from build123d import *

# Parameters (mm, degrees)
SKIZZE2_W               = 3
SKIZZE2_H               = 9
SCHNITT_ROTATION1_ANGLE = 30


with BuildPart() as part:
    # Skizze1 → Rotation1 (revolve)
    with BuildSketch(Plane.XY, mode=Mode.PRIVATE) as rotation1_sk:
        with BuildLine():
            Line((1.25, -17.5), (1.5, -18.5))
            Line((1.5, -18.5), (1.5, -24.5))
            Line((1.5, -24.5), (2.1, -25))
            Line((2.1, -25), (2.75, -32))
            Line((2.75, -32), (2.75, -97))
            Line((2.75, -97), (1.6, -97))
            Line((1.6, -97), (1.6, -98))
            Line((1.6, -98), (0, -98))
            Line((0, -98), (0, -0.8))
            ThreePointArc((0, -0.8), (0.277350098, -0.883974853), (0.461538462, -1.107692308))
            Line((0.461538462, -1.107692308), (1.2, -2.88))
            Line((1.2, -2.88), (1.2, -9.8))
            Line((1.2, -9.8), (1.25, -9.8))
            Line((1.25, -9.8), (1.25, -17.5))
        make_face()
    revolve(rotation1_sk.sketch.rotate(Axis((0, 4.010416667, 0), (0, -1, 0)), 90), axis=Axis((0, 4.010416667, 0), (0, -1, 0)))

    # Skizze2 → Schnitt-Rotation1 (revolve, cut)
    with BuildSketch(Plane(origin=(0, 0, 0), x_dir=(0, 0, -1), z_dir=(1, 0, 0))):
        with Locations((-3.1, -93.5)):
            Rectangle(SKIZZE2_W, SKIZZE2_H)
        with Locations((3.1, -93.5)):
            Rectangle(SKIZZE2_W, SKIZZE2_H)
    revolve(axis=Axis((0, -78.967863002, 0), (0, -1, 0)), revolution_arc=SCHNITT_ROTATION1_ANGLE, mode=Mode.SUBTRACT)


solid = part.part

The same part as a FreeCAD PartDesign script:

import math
import FreeCAD as App
import Part
import Sketcher
from FreeCAD import Vector


def add_polygon(sketch, points):
    """Adds a closed chain of lines whose ends are joined by coincident constraints."""
    first, n = sketch.GeometryCount, len(points)
    for a, b in zip(points, points[1:] + points[:1]):
        sketch.addGeometry(Part.LineSegment(App.Vector(*a, 0), App.Vector(*b, 0)), False)
    for i in range(n):
        sketch.addConstraint(Sketcher.Constraint("Coincident", first + i, 2, first + (i + 1) % n, 1))

doc = App.newDocument("Part")
body = doc.addObject("PartDesign::Body", "Body")

sketch1 = body.newObject("Sketcher::SketchObject", "Sketch")
sketch1.AttachmentSupport = (doc.getObject("XY_Plane"), [""])
sketch1.MapMode = "FlatFace"
sketch1.addGeometry([
    Part.LineSegment(Vector(1.5, -18.5, 0), Vector(1.25, -17.5, 0)),
    Part.LineSegment(Vector(1.25, -17.5, 0), Vector(1.25, -9.8, 0)),
    Part.LineSegment(Vector(1.25, -9.8, 0), Vector(1.2, -9.8, 0)),
    Part.LineSegment(Vector(1.2, -9.8, 0), Vector(1.2, -2.88, 0)),
    Part.LineSegment(Vector(1.2, -2.88, 0), Vector(0.46, -1.11, 0)),
    Part.ArcOfCircle(Part.Circle(Vector(0, -1.3, 0), Vector(0, 0, 1), 0.5), math.radians(23), math.radians(90)),
    Part.LineSegment(Vector(0, -0.8, 0), Vector(0, -98, 0)),
    Part.LineSegment(Vector(0, -98, 0), Vector(1.6, -98, 0)),
    Part.LineSegment(Vector(1.6, -98, 0), Vector(1.6, -97, 0)),
    Part.LineSegment(Vector(1.6, -97, 0), Vector(2.75, -97, 0)),
    Part.LineSegment(Vector(2.75, -97, 0), Vector(2.75, -32, 0)),
    Part.LineSegment(Vector(2.75, -32, 0), Vector(2.1, -25, 0)),
    Part.LineSegment(Vector(2.1, -25, 0), Vector(1.5, -24.5, 0)),
    Part.LineSegment(Vector(1.5, -24.5, 0), Vector(1.5, -18.5, 0)),
], False)
sketch1.addConstraint([
    Sketcher.Constraint("Coincident", 0, 2, 1, 1),
    Sketcher.Constraint("Coincident", 1, 2, 2, 1),
    Sketcher.Constraint("Coincident", 2, 2, 3, 1),
    Sketcher.Constraint("Coincident", 3, 2, 4, 1),
    Sketcher.Constraint("Tangent", 4, 2, 5, 1),
    Sketcher.Constraint("Coincident", 5, 2, 6, 1),
    Sketcher.Constraint("Coincident", 6, 2, 7, 1),
    Sketcher.Constraint("Coincident", 7, 2, 8, 1),
    Sketcher.Constraint("Coincident", 8, 2, 9, 1),
    Sketcher.Constraint("Coincident", 9, 2, 10, 1),
    Sketcher.Constraint("Coincident", 10, 2, 11, 1),
    Sketcher.Constraint("Coincident", 11, 2, 12, 1),
    Sketcher.Constraint("Coincident", 12, 2, 13, 1),
    Sketcher.Constraint("Coincident", 13, 2, 0, 1),
    Sketcher.Constraint("Vertical", 1),
    Sketcher.Constraint("Horizontal", 2),
    Sketcher.Constraint("Vertical", 3),
    Sketcher.Constraint("Vertical", 6),
    Sketcher.Constraint("Horizontal", 7),
    Sketcher.Constraint("Vertical", 8),
    Sketcher.Constraint("Horizontal", 9),
    Sketcher.Constraint("Vertical", 10),
    Sketcher.Constraint("Vertical", 13),
    Sketcher.Constraint("PointOnObject", 5, 3, -2),
    Sketcher.Constraint("PointOnObject", 5, 2, -2),
    Sketcher.Constraint("Radius", 5, 0.5),
    Sketcher.Constraint("DistanceY", 8, 1, 8, 2, 1.0),
    Sketcher.Constraint("DistanceY", 10, 1, 10, 2, 65.0),
    Sketcher.Constraint("DistanceY", 13, 1, 13, 2, 6.0),
    Sketcher.Constraint("DistanceX", 7, 1, 7, 2, 1.6),
    Sketcher.Constraint("DistanceY", 1, 1, 1, 2, 7.7),
    Sketcher.Constraint("DistanceY", 6, 2, 6, 1, 97.2),
    Sketcher.Constraint("DistanceY", 6, 2, -1, 1, 98.0),
    Sketcher.Constraint("DistanceY", 11, 2, -1, 1, 25.0),
    Sketcher.Constraint("DistanceY", 2, 2, 5, 2, 9.0),
    Sketcher.Constraint("DistanceY", 12, 2, 0, 2, 7.0),
    Sketcher.Constraint("DistanceX", 2, 2, 2, 1, 0.05),
    Sketcher.Constraint("DistanceX", 9, 1, 9, 2, 1.15),
    Sketcher.Constraint("DistanceY", 3, 1, 3, 2, 6.92),
    Sketcher.Constraint("DistanceX", -1, 1, 2, 2, 1.2),
    Sketcher.Constraint("DistanceX", -1, 1, 11, 2, 2.1),
    Sketcher.Constraint("DistanceX", -1, 1, 12, 2, 1.5),
])
revolution = body.newObject("PartDesign::Revolution", "Revolution")
revolution.Profile = sketch1
revolution.ReferenceAxis = (sketch1, ["V_Axis"])
revolution.Angle = 360

sketch2 = body.newObject("Sketcher::SketchObject", "Sketch001")
sketch2.AttachmentSupport = (doc.getObject("YZ_Plane"), [""])
sketch2.MapMode = "FlatFace"
add_polygon(sketch2, [(-89, 4.6), (-98, 4.6), (-98, 1.6), (-89, 1.6)])
add_polygon(sketch2, [(-89, -1.6), (-98, -1.6), (-98, -4.6), (-89, -4.6)])
sketch2.addConstraint([
    Sketcher.Constraint("Horizontal", 0),
    Sketcher.Constraint("Vertical", 1),
    Sketcher.Constraint("Horizontal", 2),
    Sketcher.Constraint("Vertical", 3),
    Sketcher.Constraint("Horizontal", 4),
    Sketcher.Constraint("Vertical", 5),
    Sketcher.Constraint("Horizontal", 6),
    Sketcher.Constraint("Vertical", 7),
    Sketcher.Constraint("Symmetric", 1, 2, 4, 2, -1),
    Sketcher.Constraint("Symmetric", 3, 2, 6, 2, -1),
    Sketcher.Constraint("DistanceX", 0, 2, 0, 1, 9.0),
    Sketcher.Constraint("DistanceY", 1, 2, 1, 1, 3.0),
    Sketcher.Constraint("DistanceX", 0, 2, -1, 1, 98.0),
    Sketcher.Constraint("DistanceY", -1, 1, 0, 2, 4.6),
])
groove = body.newObject("PartDesign::Groove", "Groove")
groove.Profile = sketch2
groove.ReferenceAxis = (sketch2, ["H_Axis"])
groove.Angle = 30
groove.Reversed = True

doc.recompute()
